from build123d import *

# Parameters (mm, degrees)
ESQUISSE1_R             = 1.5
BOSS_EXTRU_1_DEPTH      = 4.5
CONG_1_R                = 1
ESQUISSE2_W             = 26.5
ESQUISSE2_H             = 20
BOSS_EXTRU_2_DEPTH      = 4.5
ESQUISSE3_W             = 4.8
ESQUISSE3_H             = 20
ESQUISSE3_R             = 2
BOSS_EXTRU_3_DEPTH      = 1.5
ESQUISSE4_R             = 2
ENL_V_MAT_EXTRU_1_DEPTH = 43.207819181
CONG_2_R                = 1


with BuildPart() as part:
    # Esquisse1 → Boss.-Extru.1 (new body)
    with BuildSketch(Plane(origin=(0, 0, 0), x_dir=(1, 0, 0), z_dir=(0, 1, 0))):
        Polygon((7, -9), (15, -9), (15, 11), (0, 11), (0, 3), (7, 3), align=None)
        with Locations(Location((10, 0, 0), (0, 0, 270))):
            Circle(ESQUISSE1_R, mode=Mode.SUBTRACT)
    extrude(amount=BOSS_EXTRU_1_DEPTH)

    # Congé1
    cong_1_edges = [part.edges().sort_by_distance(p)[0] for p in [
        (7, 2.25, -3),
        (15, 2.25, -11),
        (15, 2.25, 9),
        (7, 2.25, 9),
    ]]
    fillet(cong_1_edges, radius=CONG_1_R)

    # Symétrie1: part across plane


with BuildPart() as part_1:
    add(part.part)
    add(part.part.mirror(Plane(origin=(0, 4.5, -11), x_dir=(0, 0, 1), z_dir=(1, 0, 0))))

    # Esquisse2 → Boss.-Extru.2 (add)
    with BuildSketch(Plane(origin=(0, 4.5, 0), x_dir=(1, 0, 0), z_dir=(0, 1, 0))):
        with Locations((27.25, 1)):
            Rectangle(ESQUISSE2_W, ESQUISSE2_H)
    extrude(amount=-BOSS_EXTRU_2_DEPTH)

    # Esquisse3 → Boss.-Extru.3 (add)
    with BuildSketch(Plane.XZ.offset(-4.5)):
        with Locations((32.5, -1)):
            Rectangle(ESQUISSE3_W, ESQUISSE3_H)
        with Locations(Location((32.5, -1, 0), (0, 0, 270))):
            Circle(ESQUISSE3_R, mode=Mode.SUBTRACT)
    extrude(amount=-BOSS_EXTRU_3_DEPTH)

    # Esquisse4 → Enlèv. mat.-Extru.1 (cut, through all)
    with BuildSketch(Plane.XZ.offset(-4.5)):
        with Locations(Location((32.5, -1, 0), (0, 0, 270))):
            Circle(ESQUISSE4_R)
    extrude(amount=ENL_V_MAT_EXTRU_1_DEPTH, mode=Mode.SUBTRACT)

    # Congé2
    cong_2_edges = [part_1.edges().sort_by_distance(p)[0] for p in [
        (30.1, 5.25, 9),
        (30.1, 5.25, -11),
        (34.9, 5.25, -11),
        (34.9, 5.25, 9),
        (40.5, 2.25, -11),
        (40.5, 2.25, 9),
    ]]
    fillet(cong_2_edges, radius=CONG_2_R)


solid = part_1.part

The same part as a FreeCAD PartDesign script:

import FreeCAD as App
import Part
import Sketcher
from FreeCAD import Vector
Q = App.Units.Quantity


def edges_at(feature, points):
    """Names of the edges that pass closest to the given points."""
    edges = feature.Shape.Edges
    near = lambda p: min(range(len(edges)), key=lambda i: edges[i].distToShape(Part.Vertex(*p))[0])
    return sorted({f"Edge{near(p) + 1}" for p in points})

doc = App.newDocument("Part")
params = doc.addObject("Spreadsheet::Sheet", "Params")
for row, (alias, value) in enumerate([
    ("sketch1_diameter", "3 mm"),
    ("sketch1_width", "8 mm"),
    ("sketch1_width2", "15 mm"),
    ("sketch1_height", "20 mm"),
    ("pad1_length", "4.5 mm"),
    ("fillet_radius", "1 mm"),
    ("sketch2_height", "20 mm"),
    ("sketch2_width", "26.5 mm"),
    ("pad2_length", "4.5 mm"),
    ("sketch3_diameter", "4 mm"),
    ("sketch3_height", "20 mm"),
    ("sketch3_width", "4.8 mm"),
    ("pad3_length", "1.5 mm"),
    ("sketch4_diameter", "4 mm"),
    ("fillet2_radius", "1 mm"),
], start=1):
    params.set(f"A{row}", alias)
    params.set(f"B{row}", "=" + value)
    params.setAlias(f"B{row}", alias)

body = doc.addObject("PartDesign::Body", "Body")

# Sketch on XZ plane
sketch1 = body.newObject("Sketcher::SketchObject", "Sketch")
sketch1.AttachmentSupport = (doc.getObject("XZ_Plane"), [""])
sketch1.MapMode = "FlatFace"
sketch1.addGeometry([
    Part.LineSegment(Vector(7, 9, 0), Vector(15, 9, 0)),  # 0
    Part.LineSegment(Vector(15, 9, 0), Vector(15, -11, 0)),  # 1
    Part.LineSegment(Vector(15, -11, 0), Vector(0, -11, 0)),  # 2
    Part.LineSegment(Vector(0, -11, 0), Vector(0, -3, 0)),  # 3
    Part.LineSegment(Vector(0, -3, 0), Vector(7, -3, 0)),  # 4
    Part.LineSegment(Vector(7, -3, 0), Vector(7, 9, 0)),  # 5
    Part.Circle(Vector(10, 0, 0), Vector(0, 0, 1), 1.5),  # 6
], False)
sketch1.addConstraint([
    Sketcher.Constraint("Coincident", 0, 2, 1, 1),
    Sketcher.Constraint("Coincident", 1, 2, 2, 1),
    Sketcher.Constraint("Coincident", 2, 2, 3, 1),
    Sketcher.Constraint("Coincident", 3, 2, 4, 1),
    Sketcher.Constraint("Coincident", 4, 2, 5, 1),
    Sketcher.Constraint("Coincident", 5, 2, 0, 1),
    Sketcher.Constraint("Horizontal", 0),
    Sketcher.Constraint("Vertical", 1),
    Sketcher.Constraint("Horizontal", 2),
    Sketcher.Constraint("Vertical", 3),
    Sketcher.Constraint("Horizontal", 4),
    Sketcher.Constraint("Vertical", 5),
    Sketcher.Constraint("PointOnObject", 6, 3, -1),
    Sketcher.Constraint("PointOnObject", 2, 2, -2),
    Sketcher.Constraint("Equal", 0, 3),
    Sketcher.Constraint("Diameter", 6, Q("3 mm")),
    Sketcher.Constraint("DistanceX", 0, 1, 0, 2, Q("8 mm")),
    Sketcher.Constraint("DistanceX", 2, 2, 2, 1, Q("15 mm")),
    Sketcher.Constraint("DistanceY", 1, 2, 1, 1, Q("20 mm")),
    Sketcher.Constraint("DistanceX", -1, 1, 6, 3, Q("10 mm")),
    Sketcher.Constraint("DistanceY", -1, 1, 0, 2, Q("9 mm")),
])
sketch1.setExpression("Constraints[15]", "Params.sketch1_diameter")
sketch1.setExpression("Constraints[16]", "Params.sketch1_width")
sketch1.setExpression("Constraints[17]", "Params.sketch1_width2")
sketch1.setExpression("Constraints[18]", "Params.sketch1_height")
pad1 = body.newObject("PartDesign::Pad", "Pad")
pad1.Profile = sketch1
pad1.setExpression("Length", "Params.pad1_length")
pad1.Reversed = True
doc.recompute()

fillet = body.newObject("PartDesign::Fillet", "Fillet")
fillet.Base = (pad1, edges_at(pad1, [
    (7, 2.25, -3),
    (15, 2.25, -11),
    (15, 2.25, 9),
    (7, 2.25, 9),
]))
fillet.setExpression("Radius", "Params.fillet_radius")
body2 = doc.addObject("PartDesign::Body", "Body001")
doc.recompute()

body2.BaseFeature = body
doc.recompute()

mirroring = doc.addObject("Part::Mirroring", "Mirroring")
mirroring.Source = body
mirroring.Base = Vector(0, 4.5, -11)
mirroring.Normal = Vector(1, 0, 0)
body3 = doc.addObject("PartDesign::Body", "Body002")
body3.BaseFeature = mirroring
boolean = body2.newObject("PartDesign::Boolean", "Boolean")
boolean.Type = "Fuse"
boolean.addObjects([body3])
doc.recompute()

# Sketch on XZ plane
sketch2 = body2.newObject("Sketcher::SketchObject", "Sketch001")
sketch2.AttachmentSupport = (doc.getObject("XZ_Plane001"), [""])
sketch2.MapMode = "FlatFace"
sketch2.AttachmentOffset = App.Placement(Vector(0, 0, -4.5), App.Rotation())
sketch2.addGeometry([
    Part.LineSegment(Vector(14, -11, 0), Vector(14, 9, 0)),
    Part.LineSegment(Vector(14, 9, 0), Vector(40.5, 9, 0)),
    Part.LineSegment(Vector(40.5, 9, 0), Vector(40.5, -11, 0)),
    Part.LineSegment(Vector(40.5, -11, 0), Vector(14, -11, 0)),
], False)
sketch2.addConstraint([
    Sketcher.Constraint("Coincident", 0, 2, 1, 1),
    Sketcher.Constraint("Coincident", 1, 2, 2, 1),
    Sketcher.Constraint("Coincident", 2, 2, 3, 1),
    Sketcher.Constraint("Coincident", 3, 2, 0, 1),
    Sketcher.Constraint("Vertical", 0),
    Sketcher.Constraint("Horizontal", 1),
    Sketcher.Constraint("Vertical", 2),
    Sketcher.Constraint("Horizontal", 3),
    Sketcher.Constraint("DistanceY", 0, 1, 0, 2, Q("20 mm")),
    Sketcher.Constraint("DistanceX", 1, 1, 1, 2, Q("26.5 mm")),
    Sketcher.Constraint("DistanceX", -1, 1, 0, 2, Q("14 mm")),
    Sketcher.Constraint("DistanceY", -1, 1, 0, 2, Q("9 mm")),
])
sketch2.setExpression("Constraints[8]", "Params.sketch2_height")
sketch2.setExpression("Constraints[9]", "Params.sketch2_width")
pad2 = body2.newObject("PartDesign::Pad", "Pad001")
pad2.Profile = sketch2
pad2.setExpression("Length", "Params.pad2_length")

# Sketch on XZ plane
sketch3 = body2.newObject("Sketcher::SketchObject", "Sketch002")
sketch3.AttachmentSupport = (doc.getObject("XZ_Plane001"), [""])
sketch3.MapMode = "FlatFace"
sketch3.AttachmentOffset = App.Placement(Vector(0, 0, -4.5), App.Rotation())
sketch3.addGeometry([
    Part.LineSegment(Vector(30.1, 9, 0), Vector(30.1, -11, 0)),  # 0
    Part.LineSegment(Vector(30.1, -11, 0), Vector(34.9, -11, 0)),  # 1
    Part.LineSegment(Vector(34.9, -11, 0), Vector(34.9, 9, 0)),  # 2
    Part.LineSegment(Vector(34.9, 9, 0), Vector(30.1, 9, 0)),  # 3
    Part.Circle(Vector(32.5, -1, 0), Vector(0, 0, 1), 2),  # 4
], False)
sketch3.addConstraint([
    Sketcher.Constraint("Coincident", 0, 2, 1, 1),
    Sketcher.Constraint("Coincident", 1, 2, 2, 1),
    Sketcher.Constraint("Coincident", 2, 2, 3, 1),
    Sketcher.Constraint("Coincident", 3, 2, 0, 1),
    Sketcher.Constraint("Vertical", 0),
    Sketcher.Constraint("Horizontal", 1),
    Sketcher.Constraint("Vertical", 2),
    Sketcher.Constraint("Horizontal", 3),
    Sketcher.Constraint("Diameter", 4, Q("4 mm")),
    Sketcher.Constraint("DistanceY", 0, 2, 0, 1, Q("20 mm")),
    Sketcher.Constraint("DistanceX", 1, 1, 1, 2, Q("4.8 mm")),
    Sketcher.Constraint("DistanceY", 4, 3, -1, 1, Q("1 mm")),
    Sketcher.Constraint("DistanceY", 0, 2, -1, 1, Q("11 mm")),
    Sketcher.Constraint("DistanceX", -1, 1, 4, 3, Q("32.5 mm")),
    Sketcher.Constraint("DistanceX", -1, 1, 0, 2, Q("30.1 mm")),
])
sketch3.setExpression("Constraints[8]", "Params.sketch3_diameter")
sketch3.setExpression("Constraints[9]", "Params.sketch3_height")
sketch3.setExpression("Constraints[10]", "Params.sketch3_width")
pad3 = body2.newObject("PartDesign::Pad", "Pad002")
pad3.Profile = sketch3
pad3.setExpression("Length", "Params.pad3_length")
pad3.Reversed = True

# Sketch on XZ plane
sketch4 = body2.newObject("Sketcher::SketchObject", "Sketch003")
sketch4.AttachmentSupport = (doc.getObject("XZ_Plane001"), [""])
sketch4.MapMode = "FlatFace"
sketch4.AttachmentOffset = App.Placement(Vector(0, 0, -4.5), App.Rotation())
sketch4.addGeometry(Part.Circle(Vector(32.5, -1, 0), Vector(0, 0, 1), 2), False)
sketch4.addConstraint([
    Sketcher.Constraint("Diameter", 0, Q("4 mm")),
    Sketcher.Constraint("DistanceY", 0, 3, -1, 1, Q("1 mm")),
    Sketcher.Constraint("DistanceX", -1, 1, 0, 3, Q("32.5 mm")),
])
sketch4.setExpression("Constraints[0]", "Params.sketch4_diameter")
pocket1 = body2.newObject("PartDesign::Pocket", "Pocket")
pocket1.Profile = sketch4
pocket1.Type = "ThroughAll"
pocket1.Reversed = True
doc.recompute()

fillet2 = body2.newObject("PartDesign::Fillet", "Fillet001")
fillet2.Base = (pocket1, edges_at(pocket1, [
    (30.1, 5.25, 9),
    (30.1, 5.25, -11),
    (34.9, 5.25, -11),
    (34.9, 5.25, 9),
    (40.5, 2.25, -11),
    (40.5, 2.25, 9),
]))
fillet2.setExpression("Radius", "Params.fillet2_radius")
mirroring.Visibility = False

doc.recompute()
